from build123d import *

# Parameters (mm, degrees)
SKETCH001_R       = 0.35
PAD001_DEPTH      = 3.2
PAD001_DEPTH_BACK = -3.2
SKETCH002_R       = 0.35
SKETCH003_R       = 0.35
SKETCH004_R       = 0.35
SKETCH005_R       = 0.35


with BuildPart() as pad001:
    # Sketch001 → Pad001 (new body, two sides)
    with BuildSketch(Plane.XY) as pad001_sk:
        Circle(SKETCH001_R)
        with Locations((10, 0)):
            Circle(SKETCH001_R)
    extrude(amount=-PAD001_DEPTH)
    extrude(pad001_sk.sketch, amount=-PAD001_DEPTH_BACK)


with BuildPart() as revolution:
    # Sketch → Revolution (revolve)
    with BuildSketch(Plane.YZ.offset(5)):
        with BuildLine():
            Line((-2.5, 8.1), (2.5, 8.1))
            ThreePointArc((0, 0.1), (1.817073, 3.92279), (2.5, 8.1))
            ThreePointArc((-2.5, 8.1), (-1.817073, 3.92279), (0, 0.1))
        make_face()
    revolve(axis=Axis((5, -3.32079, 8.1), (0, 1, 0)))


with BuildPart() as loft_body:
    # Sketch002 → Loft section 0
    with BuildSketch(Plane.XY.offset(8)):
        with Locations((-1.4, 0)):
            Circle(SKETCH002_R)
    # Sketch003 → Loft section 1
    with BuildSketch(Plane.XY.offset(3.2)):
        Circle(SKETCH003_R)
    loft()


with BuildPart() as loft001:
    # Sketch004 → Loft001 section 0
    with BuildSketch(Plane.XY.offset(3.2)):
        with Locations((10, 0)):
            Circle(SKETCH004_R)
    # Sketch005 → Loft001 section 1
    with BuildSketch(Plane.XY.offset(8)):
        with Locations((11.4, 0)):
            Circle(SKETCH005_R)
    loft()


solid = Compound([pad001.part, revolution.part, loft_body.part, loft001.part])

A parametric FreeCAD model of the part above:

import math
import FreeCAD as App
import Part
import Sketcher

doc = App.newDocument("Part")
body = doc.addObject("PartDesign::Body", "Body")
body.AllowCompound = True

sketch1 = body.newObject("Sketcher::SketchObject", "Sketch")
sketch1.AttachmentSupport = (doc.getObject("XY_Plane"), [""])
sketch1.MapMode = "FlatFace"
sketch1.addGeometry([
    Part.Circle(App.Vector(0, 0, 0), App.Vector(0, 0, 1), 0.35),
    Part.Circle(App.Vector(10, 0, 0), App.Vector(0, 0, 1), 0.35),
], False)
sketch1.addConstraint([
    Sketcher.Constraint("Coincident", 0, 3, -1, 1),
    Sketcher.Constraint("Equal", 0, 1),
    Sketcher.Constraint("PointOnObject", 1, 3, -1),
    Sketcher.Constraint("Diameter", 0, 0.7),
    Sketcher.Constraint("DistanceX", -1, 1, 1, 3, 10.0),
])
pad1 = body.newObject("PartDesign::Pad", "Pad")
pad1.Profile = sketch1
pad1.Type = "TwoLengths"
pad1.Length = 3.2
pad1.Length2 = 3.2
pad1.Reversed = True
body2 = doc.addObject("PartDesign::Body", "Body001")

sketch2 = body2.newObject("Sketcher::SketchObject", "Sketch001")
sketch2.AttachmentSupport = (doc.getObject("YZ_Plane001"), [""])
sketch2.MapMode = "FlatFace"
sketch2.AttachmentOffset = App.Placement(App.Vector(0, 0, 5), App.Rotation())
sketch2.addGeometry([
    Part.LineSegment(App.Vector(2, 8, 0), App.Vector(-2, 8, 0)),
    Part.ArcOfCircle(Part.Circle(App.Vector(13, 8, 0), App.Vector(0, 0, 1), 15), math.radians(-179), math.radians(-147)),
    Part.ArcOfCircle(Part.Circle(App.Vector(-13, 8, 0), App.Vector(0, 0, 1), 15), math.radians(-33), math.radians(-1)),
], False)
sketch2.addGeometry(Part.LineSegment(App.Vector(-13, 8, 0), App.Vector(13, 8, 0)), True)
sketch2.addConstraint([
    Sketcher.Constraint("Coincident", 0, 2, 1, 1),
    Sketcher.Constraint("Coincident", 1, 2, 2, 1),
    Sketcher.Constraint("Coincident", 2, 2, 0, 1),
    Sketcher.Constraint("Horizontal", 0),
    Sketcher.Constraint("Horizontal", 3),
    Sketcher.Constraint("Equal", 1, 2),
    Sketcher.Constraint("Symmetric", 1, 3, 2, 3, -2),
    Sketcher.Constraint("Horizontal", 2, 2, 3, 1),
    Sketcher.Constraint("Vertical", 2, 3, 3, 1),
    Sketcher.Constraint("Vertical", 1, 3, 3, 2),
    Sketcher.Constraint("DistanceX", 0, 2, 0, 1, 5.0),
    Sketcher.Constraint("DistanceY", 1, 2, 0, 2, 8.0),
    Sketcher.Constraint("DistanceY", -1, 1, 0, 2, 8.1),
    Sketcher.Constraint("DistanceY", -1, 1, 1, 3, 8.419999),
])
revolution = body2.newObject("PartDesign::Revolution", "Revolution")
revolution.Profile = sketch2
revolution.ReferenceAxis = (sketch2, ["Axis0"])
revolution.Angle = 360
body3 = doc.addObject("PartDesign::Body", "Body002")

sketch3 = body3.newObject("Sketcher::SketchObject", "Sketch002")
sketch3.AttachmentSupport = (doc.getObject("XY_Plane002"), [""])
sketch3.MapMode = "FlatFace"
sketch3.AttachmentOffset = App.Placement(App.Vector(0, 0, 8), App.Rotation())
sketch3.addGeometry(Part.Circle(App.Vector(-1.4, 0, 0), App.Vector(0, 0, 1), 0.35), False)
sketch3.addConstraint([
    Sketcher.Constraint("PointOnObject", 0, 3, -1),
    Sketcher.Constraint("Diameter", 0, 0.7),
    Sketcher.Constraint("DistanceX", 0, 3, -1, 1, 1.4),
])

sketch4 = body3.newObject("Sketcher::SketchObject", "Sketch003")
sketch4.AttachmentSupport = (doc.getObject("XY_Plane002"), [""])
sketch4.MapMode = "FlatFace"
sketch4.AttachmentOffset = App.Placement(App.Vector(0, 0, 3.2), App.Rotation())
sketch4.addGeometry(Part.Circle(App.Vector(0, 0, 0), App.Vector(0, 0, 1), 0.35), False)
sketch4.addConstraint([
    Sketcher.Constraint("Coincident", 0, 3, -1, 1),
    Sketcher.Constraint("Diameter", 0, 0.7),
])

additiveloft = body3.newObject("PartDesign::AdditiveLoft", "AdditiveLoft")
additiveloft.Profile = sketch3
additiveloft.Sections = [sketch4]
body4 = doc.addObject("PartDesign::Body", "Body003")

sketch5 = body4.newObject("Sketcher::SketchObject", "Sketch004")
sketch5.AttachmentSupport = (doc.getObject("XY_Plane003"), [""])
sketch5.MapMode = "FlatFace"
sketch5.AttachmentOffset = App.Placement(App.Vector(0, 0, 3.2), App.Rotation())
sketch5.addGeometry(Part.Circle(App.Vector(10, 0, 0), App.Vector(0, 0, 1), 0.35), False)
sketch5.addConstraint([
    Sketcher.Constraint("PointOnObject", 0, 3, -1),
    Sketcher.Constraint("Diameter", 0, 0.7),
    Sketcher.Constraint("DistanceX", -1, 1, 0, 3, 10.0),
])

sketch6 = body4.newObject("Sketcher::SketchObject", "Sketch005")
sketch6.AttachmentSupport = (doc.getObject("XY_Plane003"), [""])
sketch6.MapMode = "FlatFace"
sketch6.AttachmentOffset = App.Placement(App.Vector(0, 0, 8), App.Rotation())
sketch6.addGeometry(Part.Circle(App.Vector(11.4, 0, 0), App.Vector(0, 0, 1), 0.35), False)
sketch6.addConstraint([
    Sketcher.Constraint("PointOnObject", 0, 3, -1),
    Sketcher.Constraint("Diameter", 0, 0.7),
    Sketcher.Constraint("DistanceX", -1, 1, 0, 3, 11.4),
])

additiveloft2 = body4.newObject("PartDesign::AdditiveLoft", "AdditiveLoft001")
additiveloft2.Profile = sketch5
additiveloft2.Sections = [sketch6]

doc.recompute()
